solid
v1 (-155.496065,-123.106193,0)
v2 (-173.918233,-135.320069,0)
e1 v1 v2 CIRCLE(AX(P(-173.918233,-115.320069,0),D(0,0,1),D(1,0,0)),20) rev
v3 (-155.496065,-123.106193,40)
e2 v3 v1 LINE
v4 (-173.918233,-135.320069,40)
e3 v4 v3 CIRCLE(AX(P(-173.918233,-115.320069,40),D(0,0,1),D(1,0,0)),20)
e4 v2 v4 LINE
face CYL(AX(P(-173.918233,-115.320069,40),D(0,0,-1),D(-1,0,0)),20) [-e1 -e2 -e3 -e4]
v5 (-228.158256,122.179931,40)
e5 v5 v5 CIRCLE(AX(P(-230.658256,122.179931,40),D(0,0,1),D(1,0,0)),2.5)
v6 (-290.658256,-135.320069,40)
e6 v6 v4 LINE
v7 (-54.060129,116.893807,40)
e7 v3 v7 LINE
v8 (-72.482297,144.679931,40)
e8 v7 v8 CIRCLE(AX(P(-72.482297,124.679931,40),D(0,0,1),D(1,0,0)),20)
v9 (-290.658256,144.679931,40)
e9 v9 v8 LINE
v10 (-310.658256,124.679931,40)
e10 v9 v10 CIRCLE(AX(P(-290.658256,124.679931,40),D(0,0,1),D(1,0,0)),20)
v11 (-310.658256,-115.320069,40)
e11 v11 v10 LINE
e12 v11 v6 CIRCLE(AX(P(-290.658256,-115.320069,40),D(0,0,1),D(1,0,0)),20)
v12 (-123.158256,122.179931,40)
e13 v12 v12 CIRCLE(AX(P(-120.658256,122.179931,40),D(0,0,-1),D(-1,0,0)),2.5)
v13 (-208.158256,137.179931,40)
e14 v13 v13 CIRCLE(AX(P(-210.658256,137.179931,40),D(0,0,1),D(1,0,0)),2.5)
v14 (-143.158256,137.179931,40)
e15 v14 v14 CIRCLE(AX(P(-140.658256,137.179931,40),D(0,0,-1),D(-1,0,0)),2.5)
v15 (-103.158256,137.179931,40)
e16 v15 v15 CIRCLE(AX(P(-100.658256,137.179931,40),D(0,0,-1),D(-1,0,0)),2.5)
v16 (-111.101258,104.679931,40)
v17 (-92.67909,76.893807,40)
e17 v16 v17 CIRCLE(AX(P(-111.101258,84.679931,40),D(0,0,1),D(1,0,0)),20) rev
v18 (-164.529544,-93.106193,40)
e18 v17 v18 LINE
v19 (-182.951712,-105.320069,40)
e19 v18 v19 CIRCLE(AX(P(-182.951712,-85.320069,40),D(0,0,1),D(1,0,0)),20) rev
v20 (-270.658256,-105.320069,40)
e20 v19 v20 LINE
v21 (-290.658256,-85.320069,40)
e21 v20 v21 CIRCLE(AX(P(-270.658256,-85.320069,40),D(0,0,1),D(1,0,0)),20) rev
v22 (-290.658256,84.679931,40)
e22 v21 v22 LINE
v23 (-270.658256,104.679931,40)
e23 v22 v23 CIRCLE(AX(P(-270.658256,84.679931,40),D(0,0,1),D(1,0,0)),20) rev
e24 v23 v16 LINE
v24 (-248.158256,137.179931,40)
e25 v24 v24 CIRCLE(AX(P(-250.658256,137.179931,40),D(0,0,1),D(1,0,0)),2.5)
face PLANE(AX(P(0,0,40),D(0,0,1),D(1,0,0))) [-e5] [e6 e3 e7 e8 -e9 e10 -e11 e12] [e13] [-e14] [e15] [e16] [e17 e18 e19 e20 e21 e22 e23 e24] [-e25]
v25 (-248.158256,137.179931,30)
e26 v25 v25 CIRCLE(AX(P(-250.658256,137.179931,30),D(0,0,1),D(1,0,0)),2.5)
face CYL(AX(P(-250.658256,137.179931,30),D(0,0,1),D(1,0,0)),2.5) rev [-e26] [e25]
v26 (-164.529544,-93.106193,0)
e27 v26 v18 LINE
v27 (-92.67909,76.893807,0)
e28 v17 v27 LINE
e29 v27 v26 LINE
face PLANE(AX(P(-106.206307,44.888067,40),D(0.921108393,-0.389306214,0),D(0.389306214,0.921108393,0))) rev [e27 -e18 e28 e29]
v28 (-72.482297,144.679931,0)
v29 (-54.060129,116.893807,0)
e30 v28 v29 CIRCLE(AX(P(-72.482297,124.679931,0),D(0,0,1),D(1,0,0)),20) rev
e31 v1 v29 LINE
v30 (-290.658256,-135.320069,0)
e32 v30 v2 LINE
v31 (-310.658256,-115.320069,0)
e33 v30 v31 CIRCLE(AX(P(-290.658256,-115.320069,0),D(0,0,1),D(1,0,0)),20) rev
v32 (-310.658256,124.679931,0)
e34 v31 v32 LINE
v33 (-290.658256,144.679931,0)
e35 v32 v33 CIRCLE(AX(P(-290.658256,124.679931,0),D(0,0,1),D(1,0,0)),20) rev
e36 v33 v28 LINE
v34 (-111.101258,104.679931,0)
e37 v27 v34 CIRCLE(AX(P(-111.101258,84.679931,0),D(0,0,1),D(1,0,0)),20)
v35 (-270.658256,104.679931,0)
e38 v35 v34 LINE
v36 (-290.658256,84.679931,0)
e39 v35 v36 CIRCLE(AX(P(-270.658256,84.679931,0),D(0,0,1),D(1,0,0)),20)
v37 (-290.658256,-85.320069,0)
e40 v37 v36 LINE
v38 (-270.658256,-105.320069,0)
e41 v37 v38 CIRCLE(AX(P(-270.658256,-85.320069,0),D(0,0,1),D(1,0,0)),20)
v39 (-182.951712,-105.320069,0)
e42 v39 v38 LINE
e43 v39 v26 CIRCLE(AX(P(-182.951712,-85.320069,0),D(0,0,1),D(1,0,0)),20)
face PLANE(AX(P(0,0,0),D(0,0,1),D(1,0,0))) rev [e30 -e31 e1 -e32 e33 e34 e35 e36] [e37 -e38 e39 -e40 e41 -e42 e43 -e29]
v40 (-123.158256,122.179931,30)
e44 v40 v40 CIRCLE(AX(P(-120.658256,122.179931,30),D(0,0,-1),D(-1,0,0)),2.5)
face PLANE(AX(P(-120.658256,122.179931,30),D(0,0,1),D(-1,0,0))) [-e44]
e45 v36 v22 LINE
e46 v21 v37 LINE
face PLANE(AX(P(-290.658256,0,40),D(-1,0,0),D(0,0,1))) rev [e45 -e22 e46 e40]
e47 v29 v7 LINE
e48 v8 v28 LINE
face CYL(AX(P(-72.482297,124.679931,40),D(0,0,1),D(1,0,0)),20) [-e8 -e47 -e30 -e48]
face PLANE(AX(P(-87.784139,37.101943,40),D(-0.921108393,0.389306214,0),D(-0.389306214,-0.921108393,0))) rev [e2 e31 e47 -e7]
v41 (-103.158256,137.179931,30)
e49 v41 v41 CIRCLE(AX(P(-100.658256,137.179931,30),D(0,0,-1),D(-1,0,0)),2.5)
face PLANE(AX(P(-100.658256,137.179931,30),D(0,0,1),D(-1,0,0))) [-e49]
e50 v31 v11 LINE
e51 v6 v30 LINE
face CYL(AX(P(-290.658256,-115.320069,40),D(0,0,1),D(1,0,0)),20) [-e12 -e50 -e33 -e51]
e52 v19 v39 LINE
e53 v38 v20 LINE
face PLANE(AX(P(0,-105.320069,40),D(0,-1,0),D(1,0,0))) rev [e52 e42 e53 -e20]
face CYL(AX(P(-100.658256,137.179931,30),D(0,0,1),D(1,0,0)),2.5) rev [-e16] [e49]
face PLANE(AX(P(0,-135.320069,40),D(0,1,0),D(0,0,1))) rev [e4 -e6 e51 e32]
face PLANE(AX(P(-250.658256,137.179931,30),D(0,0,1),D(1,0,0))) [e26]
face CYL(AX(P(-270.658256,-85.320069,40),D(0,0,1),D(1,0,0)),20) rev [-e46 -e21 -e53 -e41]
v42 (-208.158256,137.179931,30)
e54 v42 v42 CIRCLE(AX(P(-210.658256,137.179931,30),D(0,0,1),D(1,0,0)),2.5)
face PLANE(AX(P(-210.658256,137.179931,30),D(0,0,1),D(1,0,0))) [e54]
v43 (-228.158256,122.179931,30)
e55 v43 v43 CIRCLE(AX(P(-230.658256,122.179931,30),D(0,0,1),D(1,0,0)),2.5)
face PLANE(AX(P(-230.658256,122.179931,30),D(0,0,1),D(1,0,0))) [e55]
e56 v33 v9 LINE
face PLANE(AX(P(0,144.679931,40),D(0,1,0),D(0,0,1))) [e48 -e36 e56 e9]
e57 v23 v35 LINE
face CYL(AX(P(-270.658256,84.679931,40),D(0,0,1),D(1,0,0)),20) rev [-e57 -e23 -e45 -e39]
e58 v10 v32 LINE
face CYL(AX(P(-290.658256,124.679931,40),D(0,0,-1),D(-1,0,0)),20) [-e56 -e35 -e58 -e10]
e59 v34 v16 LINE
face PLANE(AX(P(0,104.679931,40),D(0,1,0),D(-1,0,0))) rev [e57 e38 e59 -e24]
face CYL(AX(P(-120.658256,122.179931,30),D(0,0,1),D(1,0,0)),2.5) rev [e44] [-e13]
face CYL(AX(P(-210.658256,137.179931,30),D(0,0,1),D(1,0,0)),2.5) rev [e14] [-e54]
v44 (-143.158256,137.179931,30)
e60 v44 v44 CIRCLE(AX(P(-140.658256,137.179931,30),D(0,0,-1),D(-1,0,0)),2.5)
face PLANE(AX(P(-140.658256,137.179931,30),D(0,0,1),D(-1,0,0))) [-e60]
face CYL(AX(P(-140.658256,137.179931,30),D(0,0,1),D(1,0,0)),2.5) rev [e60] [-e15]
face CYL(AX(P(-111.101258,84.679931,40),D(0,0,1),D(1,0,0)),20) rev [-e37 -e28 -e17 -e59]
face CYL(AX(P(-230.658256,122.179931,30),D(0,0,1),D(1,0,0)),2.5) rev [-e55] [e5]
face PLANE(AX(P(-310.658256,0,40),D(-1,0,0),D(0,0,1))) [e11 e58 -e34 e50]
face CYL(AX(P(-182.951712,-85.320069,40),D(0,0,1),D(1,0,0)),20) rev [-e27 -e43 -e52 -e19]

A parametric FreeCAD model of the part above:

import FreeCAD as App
import Part
import Sketcher
Q = App.Units.Quantity


def edges_at(feature, points):
    """Names of the edges that pass closest to the given points."""
    edges = feature.Shape.Edges
    near = lambda p: min(range(len(edges)), key=lambda i: edges[i].distToShape(Part.Vertex(*p))[0])
    return sorted({f"Edge{near(p) + 1}" for p in points})


def add_polygon(sketch, points):
    """Adds a closed chain of lines whose ends are joined by coincident constraints."""
    first, n = sketch.GeometryCount, len(points)
    for a, b in zip(points, points[1:] + points[:1]):
        sketch.addGeometry(Part.LineSegment(App.Vector(*a, 0), App.Vector(*b, 0)), False)
    for i in range(n):
        sketch.addConstraint(Sketcher.Constraint("Coincident", first + i, 2, first + (i + 1) % n, 1))

doc = App.newDocument("Part")
body = doc.addObject("PartDesign::Body", "Body")

sketch1 = body.newObject("Sketcher::SketchObject", "Sketch")
sketch1.AttachmentSupport = (doc.getObject("XY_Plane"), [""])
sketch1.MapMode = "FlatFace"
add_polygon(sketch1, [(-310.658256, -135.320069), (-160.658256, -135.320069), (-42.316331, 144.679931), (-310.658256, 144.679931)])
add_polygon(sketch1, [(-290.658256, -105.320069), (-290.658256, 104.679931), (-80.935292, 104.679931), (-169.691735, -105.320069)])
sketch1.addConstraint(Sketcher.Constraint("Horizontal", 0))
sketch1.addConstraint(Sketcher.Constraint("Horizontal", 2))
sketch1.addConstraint(Sketcher.Constraint("Vertical", 3))
sketch1.addConstraint(Sketcher.Constraint("Vertical", 4))
sketch1.addConstraint(Sketcher.Constraint("Horizontal", 5))
sketch1.addConstraint(Sketcher.Constraint("Horizontal", 7))
sketch1.addConstraint(Sketcher.Constraint("Parallel", 1, 6))
sketch1.addConstraint(Sketcher.Constraint("DistanceX", 0, 1, 0, 2, Q("150 mm")))
sketch1.addConstraint(Sketcher.Constraint("DistanceY", 3, 2, 3, 1, Q("280 mm")))
sketch1.addConstraint(Sketcher.Constraint("DistanceY", 4, 1, 4, 2, Q("210 mm")))
sketch1.addConstraint(Sketcher.Constraint("DistanceX", 2, 2, 4, 2, Q("20 mm")))
sketch1.addConstraint(Sketcher.Constraint("DistanceY", 4, 2, 2, 2, Q("40 mm")))
sketch1.addConstraint(Sketcher.Constraint("DistanceX", 7, 2, 7, 1, Q("120.966521 mm")))
sketch1.addConstraint(Sketcher.Constraint("DistanceX", 2, 2, 2, 1, Q("268.341925 mm")))
sketch1.addConstraint(Sketcher.Constraint("DistanceY", 0, 2, -1, 1, Q("135.320069 mm")))
sketch1.addConstraint(Sketcher.Constraint("DistanceX", 1, 2, -1, 1, Q("42.316331 mm")))
pad1 = body.newObject("PartDesign::Pad", "Pad")
pad1.Profile = sketch1
pad1.Length = 40
doc.recompute()

fillet = body.newObject("PartDesign::Fillet", "Fillet")
fillet.Base = (pad1, edges_at(pad1, [
    (-80.935, 104.68, 20),
    (-290.658, 104.68, 20),
    (-290.658, -105.32, 20),
    (-169.692, -105.32, 20),
    (-42.316, 144.68, 20),
    (-160.658, -135.32, 20),
    (-310.658, -135.32, 20),
    (-310.658, 144.68, 20),
]))
fillet.Radius = 20

sketch2 = body.newObject("Sketcher::SketchObject", "Sketch001")
sketch2.AttachmentSupport = (doc.getObject("XY_Plane"), [""])
sketch2.MapMode = "FlatFace"
sketch2.AttachmentOffset = App.Placement(App.Vector(0, 0, 40), App.Rotation())
sketch2.addGeometry(Part.Circle(App.Vector(-250.658256, 137.179931, 0), App.Vector(0, 0, 1), 2.5), False)
sketch2.addGeometry(Part.Circle(App.Vector(-210.658256, 137.179931, 0), App.Vector(0, 0, 1), 2.5), False)
sketch2.addGeometry(Part.Circle(App.Vector(-230.658256, 122.179931, 0), App.Vector(0, 0, 1), 2.5), False)
sketch2.addConstraint(Sketcher.Constraint("Equal", 0, 1))
sketch2.addConstraint(Sketcher.Constraint("Equal", 1, 2))
sketch2.addConstraint(Sketcher.Constraint("Horizontal", 0, 3, 1, 3))
sketch2.addConstraint(Sketcher.Constraint("Diameter", 0, Q("5 mm")))
sketch2.addConstraint(Sketcher.Constraint("DistanceX", 0, 3, 1, 3, Q("40 mm")))
sketch2.addConstraint(Sketcher.Constraint("DistanceX", 0, 3, 2, 3, Q("20 mm")))
sketch2.addConstraint(Sketcher.Constraint("DistanceY", 2, 3, 0, 3, Q("15 mm")))
sketch2.addConstraint(Sketcher.Constraint("DistanceY", -1, 1, 0, 3, Q("137.179931 mm")))
sketch2.addConstraint(Sketcher.Constraint("DistanceX", 0, 3, -1, 1, Q("250.658256 mm")))
pocket1 = body.newObject("PartDesign::Pocket", "Pocket")
pocket1.Profile = sketch2
pocket1.Length = 10
doc.recompute()

datumplane = body.newObject("PartDesign::Plane", "DatumPlane")
datumplane.AttachmentSupport = (doc.getObject("YZ_Plane"), [""])
datumplane.MapMode = "FlatFace"
datumplane.AttachmentOffset = App.Placement(App.Vector(0, 0, -175.658256), App.Rotation())
mirrored = body.newObject("PartDesign::Mirrored", "Mirrored")
mirrored.Originals = [pocket1]
mirrored.MirrorPlane = (datumplane, [""])
body.Tip = mirrored

doc.recompute()
